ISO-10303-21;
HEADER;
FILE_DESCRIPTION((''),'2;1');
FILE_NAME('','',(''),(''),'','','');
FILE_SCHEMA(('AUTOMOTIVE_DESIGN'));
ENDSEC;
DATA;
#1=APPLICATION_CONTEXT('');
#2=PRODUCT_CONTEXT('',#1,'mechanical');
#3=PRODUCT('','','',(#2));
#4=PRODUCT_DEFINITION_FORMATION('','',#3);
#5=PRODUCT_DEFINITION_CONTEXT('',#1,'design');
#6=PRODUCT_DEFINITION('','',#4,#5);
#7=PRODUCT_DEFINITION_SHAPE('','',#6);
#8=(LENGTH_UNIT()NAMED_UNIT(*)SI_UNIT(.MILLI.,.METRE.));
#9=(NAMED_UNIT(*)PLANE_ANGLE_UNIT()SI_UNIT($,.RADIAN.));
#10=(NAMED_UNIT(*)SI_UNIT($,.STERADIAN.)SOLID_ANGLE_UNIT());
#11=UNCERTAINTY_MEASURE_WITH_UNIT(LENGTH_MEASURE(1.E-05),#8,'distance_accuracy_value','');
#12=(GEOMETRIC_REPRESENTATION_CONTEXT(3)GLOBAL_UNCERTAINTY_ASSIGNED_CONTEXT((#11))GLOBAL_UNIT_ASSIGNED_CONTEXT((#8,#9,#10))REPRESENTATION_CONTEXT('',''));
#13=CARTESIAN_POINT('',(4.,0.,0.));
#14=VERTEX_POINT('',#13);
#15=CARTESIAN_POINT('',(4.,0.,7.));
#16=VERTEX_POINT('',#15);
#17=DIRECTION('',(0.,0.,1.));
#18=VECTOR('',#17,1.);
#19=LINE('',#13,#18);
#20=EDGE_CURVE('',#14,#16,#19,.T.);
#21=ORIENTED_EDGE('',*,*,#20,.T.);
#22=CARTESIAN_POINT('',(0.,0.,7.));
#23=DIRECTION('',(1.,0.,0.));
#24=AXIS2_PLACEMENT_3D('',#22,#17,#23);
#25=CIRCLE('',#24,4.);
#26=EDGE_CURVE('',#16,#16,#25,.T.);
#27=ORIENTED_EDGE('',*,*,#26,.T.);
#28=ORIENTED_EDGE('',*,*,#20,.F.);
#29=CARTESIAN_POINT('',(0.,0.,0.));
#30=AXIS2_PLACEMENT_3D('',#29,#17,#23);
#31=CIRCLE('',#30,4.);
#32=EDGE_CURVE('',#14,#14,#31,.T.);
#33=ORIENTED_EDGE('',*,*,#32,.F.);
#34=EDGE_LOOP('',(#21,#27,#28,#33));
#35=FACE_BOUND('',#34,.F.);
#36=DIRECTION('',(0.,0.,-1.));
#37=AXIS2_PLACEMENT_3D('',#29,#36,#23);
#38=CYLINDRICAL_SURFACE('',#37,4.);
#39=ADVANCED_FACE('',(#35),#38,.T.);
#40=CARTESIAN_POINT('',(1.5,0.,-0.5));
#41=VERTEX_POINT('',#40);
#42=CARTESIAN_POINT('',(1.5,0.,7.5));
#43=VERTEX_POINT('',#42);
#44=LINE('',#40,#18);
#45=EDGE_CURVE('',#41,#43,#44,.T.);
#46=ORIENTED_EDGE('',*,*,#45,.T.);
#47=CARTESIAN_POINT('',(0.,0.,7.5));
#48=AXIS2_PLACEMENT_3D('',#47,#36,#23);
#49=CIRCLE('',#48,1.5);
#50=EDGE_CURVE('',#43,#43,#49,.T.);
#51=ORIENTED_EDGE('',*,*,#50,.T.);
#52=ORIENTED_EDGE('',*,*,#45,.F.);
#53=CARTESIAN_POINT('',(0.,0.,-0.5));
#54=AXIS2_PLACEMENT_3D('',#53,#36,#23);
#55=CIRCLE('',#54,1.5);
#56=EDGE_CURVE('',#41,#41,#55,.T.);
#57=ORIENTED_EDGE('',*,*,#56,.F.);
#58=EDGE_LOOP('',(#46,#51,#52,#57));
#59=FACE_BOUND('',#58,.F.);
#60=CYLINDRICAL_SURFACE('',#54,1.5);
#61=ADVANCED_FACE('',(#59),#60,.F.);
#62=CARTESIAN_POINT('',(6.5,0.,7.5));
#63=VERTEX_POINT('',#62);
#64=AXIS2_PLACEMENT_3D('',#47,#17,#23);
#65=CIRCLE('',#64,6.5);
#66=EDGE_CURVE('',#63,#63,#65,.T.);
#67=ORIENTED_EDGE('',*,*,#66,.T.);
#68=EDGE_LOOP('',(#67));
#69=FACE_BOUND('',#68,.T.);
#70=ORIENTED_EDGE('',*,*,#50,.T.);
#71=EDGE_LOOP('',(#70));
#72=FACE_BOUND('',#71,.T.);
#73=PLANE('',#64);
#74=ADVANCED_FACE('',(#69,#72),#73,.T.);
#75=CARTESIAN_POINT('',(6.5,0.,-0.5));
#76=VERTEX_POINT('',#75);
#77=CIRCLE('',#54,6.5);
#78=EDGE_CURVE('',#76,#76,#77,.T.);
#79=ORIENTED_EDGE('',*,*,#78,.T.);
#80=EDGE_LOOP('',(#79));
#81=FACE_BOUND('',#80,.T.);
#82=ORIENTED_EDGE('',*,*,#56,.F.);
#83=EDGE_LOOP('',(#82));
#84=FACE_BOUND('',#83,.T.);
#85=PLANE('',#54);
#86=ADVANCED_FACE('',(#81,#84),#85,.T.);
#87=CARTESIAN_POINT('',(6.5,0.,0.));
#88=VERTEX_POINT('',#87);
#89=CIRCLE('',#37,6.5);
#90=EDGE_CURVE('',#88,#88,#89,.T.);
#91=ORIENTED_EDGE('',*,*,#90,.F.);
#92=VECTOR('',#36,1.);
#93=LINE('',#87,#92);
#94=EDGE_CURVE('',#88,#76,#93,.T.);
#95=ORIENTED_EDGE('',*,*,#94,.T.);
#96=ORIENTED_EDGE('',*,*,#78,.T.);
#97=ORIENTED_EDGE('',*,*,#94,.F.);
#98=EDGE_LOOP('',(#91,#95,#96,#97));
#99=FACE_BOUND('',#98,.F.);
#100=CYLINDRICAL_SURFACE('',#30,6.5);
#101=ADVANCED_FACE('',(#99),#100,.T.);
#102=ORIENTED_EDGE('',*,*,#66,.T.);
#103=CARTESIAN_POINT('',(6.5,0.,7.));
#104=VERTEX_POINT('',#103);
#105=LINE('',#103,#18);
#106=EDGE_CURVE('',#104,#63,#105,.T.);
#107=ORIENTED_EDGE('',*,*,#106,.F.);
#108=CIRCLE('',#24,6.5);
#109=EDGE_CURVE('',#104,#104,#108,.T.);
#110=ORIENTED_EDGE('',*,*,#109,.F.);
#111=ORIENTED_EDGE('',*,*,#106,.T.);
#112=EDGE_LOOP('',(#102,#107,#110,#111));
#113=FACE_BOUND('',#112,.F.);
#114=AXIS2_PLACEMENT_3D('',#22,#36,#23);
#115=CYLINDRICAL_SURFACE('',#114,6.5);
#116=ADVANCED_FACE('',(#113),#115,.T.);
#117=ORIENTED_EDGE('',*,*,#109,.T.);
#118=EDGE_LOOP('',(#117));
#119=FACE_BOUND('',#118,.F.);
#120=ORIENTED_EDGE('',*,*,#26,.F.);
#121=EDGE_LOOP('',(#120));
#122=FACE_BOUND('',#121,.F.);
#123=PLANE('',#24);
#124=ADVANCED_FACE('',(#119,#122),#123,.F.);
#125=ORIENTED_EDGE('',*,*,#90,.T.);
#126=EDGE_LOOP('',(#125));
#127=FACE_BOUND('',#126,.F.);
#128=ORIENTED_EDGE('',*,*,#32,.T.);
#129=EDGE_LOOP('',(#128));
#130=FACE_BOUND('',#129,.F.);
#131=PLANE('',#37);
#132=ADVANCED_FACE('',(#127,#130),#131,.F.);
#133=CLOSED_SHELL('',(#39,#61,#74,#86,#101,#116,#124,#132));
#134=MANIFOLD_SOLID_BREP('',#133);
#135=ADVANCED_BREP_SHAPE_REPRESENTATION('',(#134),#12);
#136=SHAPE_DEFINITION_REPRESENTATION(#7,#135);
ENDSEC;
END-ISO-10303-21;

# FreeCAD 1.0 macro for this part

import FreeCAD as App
import Part
import Sketcher

V = App.Vector

doc = App.newDocument("Part")
body = doc.addObject("PartDesign::Body", "Body")

# Sketch on XY plane
sketch1 = doc.addObject("Sketcher::SketchObject", "Sketch")
body.addObject(sketch1)
sketch1.AttachmentSupport = (doc.XY_Plane, [""])
sketch1.MapMode = "FlatFace"
sketch1.addGeometry(Part.Circle(V(0, 0, 0), V(0, 0, 1), 4), False)
sketch1.addConstraint(Sketcher.Constraint("Coincident", 0, 3, -1, 1))
sketch1.addConstraint(Sketcher.Constraint("Diameter", 0, 8.0))
pad1 = doc.addObject("PartDesign::Pad", "Pad")
body.addObject(pad1)
pad1.Profile = sketch1
pad1.Length = 7

# Sketch on XY plane
sketch2 = doc.addObject("Sketcher::SketchObject", "Sketch001")
body.addObject(sketch2)
sketch2.AttachmentSupport = (doc.XY_Plane, [""])
sketch2.MapMode = "FlatFace"
sketch2.AttachmentOffset = App.Placement(V(0, 0, 7), App.Rotation())
sketch2.addGeometry(Part.Circle(V(0, 0, 0), V(0, 0, 1), 6), False)
sketch2.addConstraint(Sketcher.Constraint("Coincident", 0, 3, -1, 1))
sketch2.addConstraint(Sketcher.Constraint("Diameter", 0, 13.0))
pad2 = doc.addObject("PartDesign::Pad", "Pad001")
body.addObject(pad2)
pad2.Profile = sketch2
pad2.Length = 0.5

# Sketch on XY plane
sketch3 = doc.addObject("Sketcher::SketchObject", "Sketch002")
body.addObject(sketch3)
sketch3.AttachmentSupport = (doc.XY_Plane, [""])
sketch3.MapMode = "FlatFace"
sketch3.addGeometry(Part.Circle(V(0, 0, 0), V(0, 0, 1), 6), False)
sketch3.addConstraint(Sketcher.Constraint("Coincident", 0, 3, -1, 1))
sketch3.addConstraint(Sketcher.Constraint("Diameter", 0, 13.0))
pad3 = doc.addObject("PartDesign::Pad", "Pad002")
body.addObject(pad3)
pad3.Profile = sketch3
pad3.Length = 0.5
pad3.Reversed = True

# Sketch on XY plane
sketch4 = doc.addObject("Sketcher::SketchObject", "Sketch003")
body.addObject(sketch4)
sketch4.AttachmentSupport = (doc.XY_Plane, [""])
sketch4.MapMode = "FlatFace"
sketch4.AttachmentOffset = App.Placement(V(0, 0, -0.5), App.Rotation())
sketch4.addGeometry(Part.Circle(V(0, 0, 0), V(0, 0, 1), 1.5), False)
sketch4.addConstraint(Sketcher.Constraint("Coincident", 0, 3, -1, 1))
sketch4.addConstraint(Sketcher.Constraint("Diameter", 0, 3.0))
pocket1 = doc.addObject("PartDesign::Pocket", "Pocket")
body.addObject(pocket1)
pocket1.Profile = sketch4
pocket1.Type = "ThroughAll"
pocket1.Reversed = True

doc.recompute()
